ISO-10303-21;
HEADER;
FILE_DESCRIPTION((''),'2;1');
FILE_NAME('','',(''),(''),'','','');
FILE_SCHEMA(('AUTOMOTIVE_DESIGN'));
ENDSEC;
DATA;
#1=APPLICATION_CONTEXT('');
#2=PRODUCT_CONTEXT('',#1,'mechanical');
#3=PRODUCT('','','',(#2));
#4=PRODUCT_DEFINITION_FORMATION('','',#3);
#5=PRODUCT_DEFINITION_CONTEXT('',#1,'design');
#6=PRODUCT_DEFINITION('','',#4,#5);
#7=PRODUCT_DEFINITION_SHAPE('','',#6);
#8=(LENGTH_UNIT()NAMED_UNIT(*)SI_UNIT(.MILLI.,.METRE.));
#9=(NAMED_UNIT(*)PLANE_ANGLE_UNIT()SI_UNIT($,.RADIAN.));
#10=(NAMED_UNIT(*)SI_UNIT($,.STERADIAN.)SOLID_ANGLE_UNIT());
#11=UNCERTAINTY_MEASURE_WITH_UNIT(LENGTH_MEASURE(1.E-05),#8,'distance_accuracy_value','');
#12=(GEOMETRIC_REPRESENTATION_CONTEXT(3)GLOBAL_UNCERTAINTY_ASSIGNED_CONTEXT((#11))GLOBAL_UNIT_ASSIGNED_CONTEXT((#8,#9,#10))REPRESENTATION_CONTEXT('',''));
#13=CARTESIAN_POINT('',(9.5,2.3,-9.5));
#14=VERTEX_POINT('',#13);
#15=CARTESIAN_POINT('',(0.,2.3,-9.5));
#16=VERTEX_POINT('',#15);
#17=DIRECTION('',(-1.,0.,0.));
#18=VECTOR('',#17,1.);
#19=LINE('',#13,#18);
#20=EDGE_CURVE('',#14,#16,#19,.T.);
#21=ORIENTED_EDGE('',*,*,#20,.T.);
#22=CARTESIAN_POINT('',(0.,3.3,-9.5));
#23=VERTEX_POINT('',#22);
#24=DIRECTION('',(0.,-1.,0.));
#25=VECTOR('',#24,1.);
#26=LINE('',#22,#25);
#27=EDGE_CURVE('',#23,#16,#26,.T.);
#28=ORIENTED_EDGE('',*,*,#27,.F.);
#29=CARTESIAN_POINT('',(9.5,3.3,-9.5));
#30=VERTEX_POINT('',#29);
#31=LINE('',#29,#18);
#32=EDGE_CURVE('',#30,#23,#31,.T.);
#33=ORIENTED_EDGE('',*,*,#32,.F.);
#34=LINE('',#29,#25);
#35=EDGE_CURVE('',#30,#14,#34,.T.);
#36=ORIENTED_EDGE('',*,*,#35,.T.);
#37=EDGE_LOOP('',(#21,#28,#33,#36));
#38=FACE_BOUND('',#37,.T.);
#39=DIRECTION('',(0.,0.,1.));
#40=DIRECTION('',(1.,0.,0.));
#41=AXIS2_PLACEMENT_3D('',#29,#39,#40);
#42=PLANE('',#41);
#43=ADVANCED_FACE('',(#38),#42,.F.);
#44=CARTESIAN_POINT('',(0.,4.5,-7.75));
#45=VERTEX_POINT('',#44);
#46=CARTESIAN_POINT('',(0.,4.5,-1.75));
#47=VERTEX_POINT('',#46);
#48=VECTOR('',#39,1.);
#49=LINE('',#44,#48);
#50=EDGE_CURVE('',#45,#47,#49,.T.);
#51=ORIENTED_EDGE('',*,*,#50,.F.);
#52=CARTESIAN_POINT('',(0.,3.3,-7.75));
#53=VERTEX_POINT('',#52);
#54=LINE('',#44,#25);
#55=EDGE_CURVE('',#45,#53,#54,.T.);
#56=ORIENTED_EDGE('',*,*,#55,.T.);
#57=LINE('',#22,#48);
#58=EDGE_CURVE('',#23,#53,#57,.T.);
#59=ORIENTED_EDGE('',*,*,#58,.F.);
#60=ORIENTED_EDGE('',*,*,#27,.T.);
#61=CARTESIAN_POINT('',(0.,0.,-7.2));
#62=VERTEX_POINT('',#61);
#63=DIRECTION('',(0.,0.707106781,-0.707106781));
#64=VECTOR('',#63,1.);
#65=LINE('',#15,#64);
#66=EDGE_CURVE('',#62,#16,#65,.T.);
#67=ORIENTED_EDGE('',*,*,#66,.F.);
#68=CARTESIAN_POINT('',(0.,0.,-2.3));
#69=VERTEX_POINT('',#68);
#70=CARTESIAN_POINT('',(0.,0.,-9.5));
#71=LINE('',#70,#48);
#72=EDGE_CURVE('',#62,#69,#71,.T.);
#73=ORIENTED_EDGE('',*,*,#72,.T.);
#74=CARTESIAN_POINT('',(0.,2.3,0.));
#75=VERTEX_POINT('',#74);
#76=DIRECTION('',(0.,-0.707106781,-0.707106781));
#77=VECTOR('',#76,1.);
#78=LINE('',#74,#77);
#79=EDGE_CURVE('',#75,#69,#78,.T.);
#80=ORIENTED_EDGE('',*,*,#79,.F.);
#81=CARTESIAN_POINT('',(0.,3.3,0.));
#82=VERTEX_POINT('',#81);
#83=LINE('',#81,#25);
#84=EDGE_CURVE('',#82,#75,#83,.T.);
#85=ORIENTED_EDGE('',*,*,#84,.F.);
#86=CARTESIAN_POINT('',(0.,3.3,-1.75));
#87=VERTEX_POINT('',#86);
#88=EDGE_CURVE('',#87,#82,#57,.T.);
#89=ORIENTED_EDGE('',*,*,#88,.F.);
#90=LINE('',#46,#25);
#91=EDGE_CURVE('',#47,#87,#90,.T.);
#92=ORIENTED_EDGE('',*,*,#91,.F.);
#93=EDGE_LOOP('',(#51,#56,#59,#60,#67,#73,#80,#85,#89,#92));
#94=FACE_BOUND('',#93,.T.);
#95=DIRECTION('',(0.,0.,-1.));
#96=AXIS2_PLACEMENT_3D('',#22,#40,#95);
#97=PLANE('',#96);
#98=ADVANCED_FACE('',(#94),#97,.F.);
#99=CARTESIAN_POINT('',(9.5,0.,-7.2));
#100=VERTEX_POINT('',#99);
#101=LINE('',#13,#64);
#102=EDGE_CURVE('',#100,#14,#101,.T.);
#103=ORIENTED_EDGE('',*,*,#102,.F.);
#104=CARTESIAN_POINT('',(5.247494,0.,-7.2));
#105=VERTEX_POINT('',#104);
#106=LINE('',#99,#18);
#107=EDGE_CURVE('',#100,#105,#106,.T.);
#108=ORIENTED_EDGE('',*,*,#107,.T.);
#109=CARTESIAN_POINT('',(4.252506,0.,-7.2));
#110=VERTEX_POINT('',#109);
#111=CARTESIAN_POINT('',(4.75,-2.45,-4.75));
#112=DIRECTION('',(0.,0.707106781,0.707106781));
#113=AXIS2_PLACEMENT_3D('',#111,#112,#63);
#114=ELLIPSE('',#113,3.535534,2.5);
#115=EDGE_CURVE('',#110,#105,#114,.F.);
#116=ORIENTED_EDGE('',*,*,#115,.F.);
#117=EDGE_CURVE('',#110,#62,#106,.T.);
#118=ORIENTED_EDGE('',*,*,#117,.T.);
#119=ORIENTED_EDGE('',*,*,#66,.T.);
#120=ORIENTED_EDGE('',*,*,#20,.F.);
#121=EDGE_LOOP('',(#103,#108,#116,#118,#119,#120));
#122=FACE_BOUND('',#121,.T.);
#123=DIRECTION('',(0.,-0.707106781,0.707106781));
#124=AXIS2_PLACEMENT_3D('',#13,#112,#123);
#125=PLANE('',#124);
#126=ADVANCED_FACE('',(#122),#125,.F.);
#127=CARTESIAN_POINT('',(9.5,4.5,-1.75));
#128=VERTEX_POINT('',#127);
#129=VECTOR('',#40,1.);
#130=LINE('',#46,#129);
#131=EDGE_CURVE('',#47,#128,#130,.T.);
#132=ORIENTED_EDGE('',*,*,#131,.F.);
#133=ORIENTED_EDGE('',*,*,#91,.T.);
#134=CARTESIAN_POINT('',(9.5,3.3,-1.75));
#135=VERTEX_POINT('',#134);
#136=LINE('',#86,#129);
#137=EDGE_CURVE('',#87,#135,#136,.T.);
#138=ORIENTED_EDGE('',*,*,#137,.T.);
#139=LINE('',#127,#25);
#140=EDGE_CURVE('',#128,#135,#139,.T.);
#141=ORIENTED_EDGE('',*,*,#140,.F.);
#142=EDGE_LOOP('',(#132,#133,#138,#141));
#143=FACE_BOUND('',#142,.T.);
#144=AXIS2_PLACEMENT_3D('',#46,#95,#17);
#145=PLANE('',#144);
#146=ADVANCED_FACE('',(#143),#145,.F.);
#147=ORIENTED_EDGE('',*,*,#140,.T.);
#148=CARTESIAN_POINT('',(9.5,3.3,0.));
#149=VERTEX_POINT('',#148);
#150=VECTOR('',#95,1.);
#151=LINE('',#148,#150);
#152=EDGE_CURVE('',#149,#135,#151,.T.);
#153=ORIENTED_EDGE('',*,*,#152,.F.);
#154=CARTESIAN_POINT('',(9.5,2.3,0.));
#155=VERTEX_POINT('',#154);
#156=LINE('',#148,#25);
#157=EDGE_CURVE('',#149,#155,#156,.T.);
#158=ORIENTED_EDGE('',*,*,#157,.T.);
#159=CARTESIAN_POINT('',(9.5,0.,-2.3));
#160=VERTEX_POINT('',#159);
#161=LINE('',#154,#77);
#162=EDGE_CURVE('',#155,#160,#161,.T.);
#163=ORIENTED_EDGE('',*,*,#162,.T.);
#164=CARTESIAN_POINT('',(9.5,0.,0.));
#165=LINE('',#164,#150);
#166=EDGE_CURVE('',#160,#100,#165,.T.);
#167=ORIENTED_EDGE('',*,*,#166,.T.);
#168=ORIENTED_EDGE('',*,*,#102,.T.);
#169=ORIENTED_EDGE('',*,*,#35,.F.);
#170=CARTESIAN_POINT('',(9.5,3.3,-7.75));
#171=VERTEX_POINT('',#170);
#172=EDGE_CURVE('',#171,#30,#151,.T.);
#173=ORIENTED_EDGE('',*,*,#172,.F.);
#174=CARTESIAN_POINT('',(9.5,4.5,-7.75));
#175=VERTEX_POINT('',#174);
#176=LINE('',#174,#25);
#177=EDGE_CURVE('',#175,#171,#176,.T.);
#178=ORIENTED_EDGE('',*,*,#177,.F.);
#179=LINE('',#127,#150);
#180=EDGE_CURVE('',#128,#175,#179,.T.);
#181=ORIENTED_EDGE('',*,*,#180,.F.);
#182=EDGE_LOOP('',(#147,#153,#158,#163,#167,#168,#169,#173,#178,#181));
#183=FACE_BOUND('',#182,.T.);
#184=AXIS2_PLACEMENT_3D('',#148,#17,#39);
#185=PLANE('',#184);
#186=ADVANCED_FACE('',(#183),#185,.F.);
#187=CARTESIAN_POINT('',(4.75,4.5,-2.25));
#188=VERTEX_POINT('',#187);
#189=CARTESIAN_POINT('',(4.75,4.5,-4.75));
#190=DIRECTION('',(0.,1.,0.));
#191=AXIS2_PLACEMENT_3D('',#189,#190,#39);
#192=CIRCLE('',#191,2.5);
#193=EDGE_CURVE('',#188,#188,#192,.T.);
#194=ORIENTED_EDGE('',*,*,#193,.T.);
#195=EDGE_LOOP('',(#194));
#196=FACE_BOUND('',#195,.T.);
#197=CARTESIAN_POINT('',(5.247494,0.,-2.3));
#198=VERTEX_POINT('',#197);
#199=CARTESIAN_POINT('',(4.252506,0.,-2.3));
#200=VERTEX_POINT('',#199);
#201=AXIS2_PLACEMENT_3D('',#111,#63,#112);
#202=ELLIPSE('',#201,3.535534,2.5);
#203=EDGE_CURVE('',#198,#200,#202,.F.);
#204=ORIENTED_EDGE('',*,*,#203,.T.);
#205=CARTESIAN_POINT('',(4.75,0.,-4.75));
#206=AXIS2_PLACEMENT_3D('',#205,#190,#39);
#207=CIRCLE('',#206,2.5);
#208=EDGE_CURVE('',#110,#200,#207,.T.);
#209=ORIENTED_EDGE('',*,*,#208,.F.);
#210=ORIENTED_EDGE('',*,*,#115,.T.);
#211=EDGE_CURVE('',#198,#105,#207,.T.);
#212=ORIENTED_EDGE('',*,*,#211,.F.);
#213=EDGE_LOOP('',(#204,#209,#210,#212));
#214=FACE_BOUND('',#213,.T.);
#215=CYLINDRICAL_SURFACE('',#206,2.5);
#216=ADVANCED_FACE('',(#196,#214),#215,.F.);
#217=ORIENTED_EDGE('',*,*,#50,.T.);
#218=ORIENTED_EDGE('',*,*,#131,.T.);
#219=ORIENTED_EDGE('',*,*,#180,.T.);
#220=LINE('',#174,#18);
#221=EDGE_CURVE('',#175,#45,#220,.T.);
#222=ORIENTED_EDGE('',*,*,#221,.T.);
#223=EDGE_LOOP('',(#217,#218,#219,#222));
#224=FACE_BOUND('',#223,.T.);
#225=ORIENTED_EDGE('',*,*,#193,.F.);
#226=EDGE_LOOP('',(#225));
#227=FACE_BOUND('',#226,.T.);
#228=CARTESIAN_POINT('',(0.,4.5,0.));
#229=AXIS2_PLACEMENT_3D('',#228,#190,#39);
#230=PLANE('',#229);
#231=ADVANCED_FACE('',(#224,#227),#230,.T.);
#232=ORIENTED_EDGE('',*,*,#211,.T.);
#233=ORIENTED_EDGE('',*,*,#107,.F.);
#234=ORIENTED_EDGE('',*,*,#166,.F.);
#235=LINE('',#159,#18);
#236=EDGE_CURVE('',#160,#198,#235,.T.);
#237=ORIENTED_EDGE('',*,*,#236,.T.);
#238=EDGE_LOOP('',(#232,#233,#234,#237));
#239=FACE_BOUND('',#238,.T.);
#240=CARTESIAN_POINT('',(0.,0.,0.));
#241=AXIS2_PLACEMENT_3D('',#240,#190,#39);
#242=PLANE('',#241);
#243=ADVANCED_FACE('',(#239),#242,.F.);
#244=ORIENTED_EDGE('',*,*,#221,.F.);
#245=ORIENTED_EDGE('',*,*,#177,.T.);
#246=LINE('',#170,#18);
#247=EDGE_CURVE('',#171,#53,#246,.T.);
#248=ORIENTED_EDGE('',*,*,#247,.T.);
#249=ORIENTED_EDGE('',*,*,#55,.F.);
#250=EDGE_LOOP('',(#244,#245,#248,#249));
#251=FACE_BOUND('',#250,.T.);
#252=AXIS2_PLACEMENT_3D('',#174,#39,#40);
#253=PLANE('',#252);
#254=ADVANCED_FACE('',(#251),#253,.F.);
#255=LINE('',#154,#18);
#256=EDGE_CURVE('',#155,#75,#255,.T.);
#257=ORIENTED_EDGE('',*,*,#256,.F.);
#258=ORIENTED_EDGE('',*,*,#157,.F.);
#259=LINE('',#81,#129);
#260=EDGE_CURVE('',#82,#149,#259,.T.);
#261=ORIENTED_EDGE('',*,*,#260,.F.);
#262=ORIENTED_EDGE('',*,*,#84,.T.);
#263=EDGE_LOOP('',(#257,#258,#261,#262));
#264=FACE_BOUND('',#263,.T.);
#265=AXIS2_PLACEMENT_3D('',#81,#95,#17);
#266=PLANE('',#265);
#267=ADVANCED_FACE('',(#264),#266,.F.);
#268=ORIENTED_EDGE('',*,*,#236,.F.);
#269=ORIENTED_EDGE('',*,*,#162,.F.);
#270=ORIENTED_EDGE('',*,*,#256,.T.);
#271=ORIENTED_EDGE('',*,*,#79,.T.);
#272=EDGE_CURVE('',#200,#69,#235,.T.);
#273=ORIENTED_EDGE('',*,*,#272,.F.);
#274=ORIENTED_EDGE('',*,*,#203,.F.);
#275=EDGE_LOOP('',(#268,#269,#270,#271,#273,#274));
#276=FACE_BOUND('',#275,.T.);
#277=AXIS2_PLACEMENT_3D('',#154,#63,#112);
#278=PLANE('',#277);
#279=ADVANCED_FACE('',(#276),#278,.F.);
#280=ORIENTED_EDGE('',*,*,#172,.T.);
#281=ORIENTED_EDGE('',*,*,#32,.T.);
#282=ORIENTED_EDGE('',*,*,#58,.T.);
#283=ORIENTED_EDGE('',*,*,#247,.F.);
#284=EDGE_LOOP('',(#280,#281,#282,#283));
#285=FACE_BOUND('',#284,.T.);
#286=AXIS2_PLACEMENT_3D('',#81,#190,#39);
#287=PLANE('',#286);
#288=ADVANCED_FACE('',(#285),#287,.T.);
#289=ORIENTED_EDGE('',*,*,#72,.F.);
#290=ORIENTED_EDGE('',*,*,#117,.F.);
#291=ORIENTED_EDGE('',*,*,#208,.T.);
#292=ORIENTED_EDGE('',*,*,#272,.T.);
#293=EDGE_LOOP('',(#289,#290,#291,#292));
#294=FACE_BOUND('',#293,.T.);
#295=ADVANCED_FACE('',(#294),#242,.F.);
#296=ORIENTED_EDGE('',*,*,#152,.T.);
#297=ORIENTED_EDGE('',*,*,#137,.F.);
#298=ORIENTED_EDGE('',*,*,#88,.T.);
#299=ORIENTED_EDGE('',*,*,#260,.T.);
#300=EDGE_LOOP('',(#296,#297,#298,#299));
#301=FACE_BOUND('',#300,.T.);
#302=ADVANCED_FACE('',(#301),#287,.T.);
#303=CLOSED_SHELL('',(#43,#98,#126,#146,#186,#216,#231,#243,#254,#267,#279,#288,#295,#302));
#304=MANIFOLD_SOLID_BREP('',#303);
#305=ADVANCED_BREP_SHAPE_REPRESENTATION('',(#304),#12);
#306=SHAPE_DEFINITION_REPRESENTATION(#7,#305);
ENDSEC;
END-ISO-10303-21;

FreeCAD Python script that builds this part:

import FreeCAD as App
import Part
import Sketcher
Q = App.Units.Quantity

doc = App.newDocument("Part")
body = doc.addObject("PartDesign::Body", "Body")

# Sketch on XZ plane
sketch1 = doc.addObject("Sketcher::SketchObject", "Sketch")
body.addObject(sketch1)
sketch1.AttachmentSupport = (doc.XZ_Plane, [""])
sketch1.MapMode = "FlatFace"
sketch1.addGeometry([
    Part.LineSegment(App.Vector(0, -10, 0), App.Vector(0, 0, 0)),
    Part.LineSegment(App.Vector(0, 0, 0), App.Vector(10, 0, 0)),
    Part.LineSegment(App.Vector(10, 0, 0), App.Vector(10, -10, 0)),
    Part.LineSegment(App.Vector(10, -10, 0), App.Vector(0, -10, 0)),
], False)
sketch1.addConstraint([
    Sketcher.Constraint("Coincident", 0, 2, 1, 1),
    Sketcher.Constraint("Coincident", 1, 2, 2, 1),
    Sketcher.Constraint("Coincident", 2, 2, 3, 1),
    Sketcher.Constraint("Coincident", 3, 2, 0, 1),
    Sketcher.Constraint("Vertical", 0),
    Sketcher.Constraint("Horizontal", 1),
    Sketcher.Constraint("Vertical", 2),
    Sketcher.Constraint("Horizontal", 3),
    Sketcher.Constraint("Coincident", 0, 2, -1, 1),
    Sketcher.Constraint("Equal", 3, 0),
    Sketcher.Constraint("DistanceX", 1, 1, 1, 2, Q("9.5 mm")),
])
pad1 = doc.addObject("PartDesign::Pad", "Pad")
body.addObject(pad1)
pad1.Profile = sketch1
pad1.Length = 3.3
pad1.Reversed = True

# Sketch on XZ plane
sketch2 = doc.addObject("Sketcher::SketchObject", "Sketch001")
body.addObject(sketch2)
sketch2.AttachmentSupport = (doc.XZ_Plane, [""])
sketch2.MapMode = "FlatFace"
sketch2.AttachmentOffset = App.Placement(App.Vector(0, 0, -3.3), App.Rotation())
sketch2.addGeometry([
    Part.LineSegment(App.Vector(0, -8, 0), App.Vector(0, -2, 0)),
    Part.LineSegment(App.Vector(0, -2, 0), App.Vector(10, -2, 0)),
    Part.LineSegment(App.Vector(10, -2, 0), App.Vector(10, -8, 0)),
    Part.LineSegment(App.Vector(10, -8, 0), App.Vector(0, -8, 0)),
], False)
sketch2.addConstraint([
    Sketcher.Constraint("Coincident", 0, 2, 1, 1),
    Sketcher.Constraint("Coincident", 1, 2, 2, 1),
    Sketcher.Constraint("Coincident", 2, 2, 3, 1),
    Sketcher.Constraint("Coincident", 3, 2, 0, 1),
    Sketcher.Constraint("Vertical", 0),
    Sketcher.Constraint("Horizontal", 1),
    Sketcher.Constraint("Vertical", 2),
    Sketcher.Constraint("Horizontal", 3),
    Sketcher.Constraint("PointOnObject", 0, 2, -2),
    Sketcher.Constraint("DistanceY", 0, 1, 0, 2, Q("6 mm")),
    Sketcher.Constraint("DistanceX", 1, 1, 1, 2, Q("9.5 mm")),
    Sketcher.Constraint("DistanceY", 0, 2, -1, 1, Q("1.75 mm")),
])
pad2 = doc.addObject("PartDesign::Pad", "Pad001")
body.addObject(pad2)
pad2.Profile = sketch2
pad2.Length = 1.2
pad2.Reversed = True

# Sketch on XZ plane
sketch3 = doc.addObject("Sketcher::SketchObject", "Sketch002")
body.addObject(sketch3)
sketch3.AttachmentSupport = (doc.XZ_Plane, [""])
sketch3.MapMode = "FlatFace"
sketch3.AttachmentOffset = App.Placement(App.Vector(0, 0, -4.5), App.Rotation())
sketch3.addGeometry(Part.Circle(App.Vector(4.8, -4.8, 0), App.Vector(0, 0, 1), 2.5), False)
sketch3.addConstraint([
    Sketcher.Constraint("Diameter", 0, Q("5 mm")),
    Sketcher.Constraint("DistanceX", -1, 1, 0, 3, Q("4.75 mm")),
    Sketcher.Constraint("DistanceY", 0, 3, -1, 1, Q("4.75 mm")),
])
pocket1 = doc.addObject("PartDesign::Pocket", "Pocket")
body.addObject(pocket1)
pocket1.Profile = sketch3
pocket1.Type = "ThroughAll"
pocket1.Reversed = True

# Sketch on YZ plane
sketch4 = doc.addObject("Sketcher::SketchObject", "Sketch003")
body.addObject(sketch4)
sketch4.AttachmentSupport = (doc.YZ_Plane, [""])
sketch4.MapMode = "FlatFace"
sketch4.addGeometry([
    Part.LineSegment(App.Vector(0, -7.2, 0), App.Vector(2.3, -9.5, 0)),  # 0
    Part.LineSegment(App.Vector(2.3, -9.5, 0), App.Vector(0, -9.5, 0)),  # 1
    Part.LineSegment(App.Vector(0, -9.5, 0), App.Vector(0, -7.2, 0)),  # 2
    Part.LineSegment(App.Vector(2.3, 0, 0), App.Vector(0, -2.3, 0)),  # 3
    Part.LineSegment(App.Vector(0, -2.3, 0), App.Vector(0, 0, 0)),  # 4
    Part.LineSegment(App.Vector(0, 0, 0), App.Vector(2.3, 0, 0)),  # 5
], False)
sketch4.addConstraint([
    Sketcher.Constraint("Coincident", 0, 2, 1, 1),
    Sketcher.Constraint("Coincident", 1, 2, 2, 1),
    Sketcher.Constraint("Coincident", 2, 2, 0, 1),
    Sketcher.Constraint("Coincident", 3, 2, 4, 1),
    Sketcher.Constraint("Coincident", 4, 2, 5, 1),
    Sketcher.Constraint("Coincident", 5, 2, 3, 1),
    Sketcher.Constraint("Horizontal", 1),
    Sketcher.Constraint("Vertical", 2),
    Sketcher.Constraint("Vertical", 4),
    Sketcher.Constraint("Horizontal", 5),
    Sketcher.Constraint("Coincident", 4, 2, -1, 1),
    Sketcher.Constraint("PointOnObject", 1, 2, -2),
    Sketcher.Constraint("Perpendicular", 0, 3),
    Sketcher.Constraint("Vertical", 0, 2, 5, 2),
    Sketcher.Constraint("Equal", 5, 2),
    Sketcher.Constraint("DistanceX", 1, 2, 1, 1, Q("2.3 mm")),
    Sketcher.Constraint("DistanceY", 0, 2, -1, 1, Q("9.5 mm")),
])
pocket2 = doc.addObject("PartDesign::Pocket", "Pocket001")
body.addObject(pocket2)
pocket2.Profile = sketch4
pocket2.Type = "ThroughAll"
pocket2.Reversed = True

doc.recompute()
